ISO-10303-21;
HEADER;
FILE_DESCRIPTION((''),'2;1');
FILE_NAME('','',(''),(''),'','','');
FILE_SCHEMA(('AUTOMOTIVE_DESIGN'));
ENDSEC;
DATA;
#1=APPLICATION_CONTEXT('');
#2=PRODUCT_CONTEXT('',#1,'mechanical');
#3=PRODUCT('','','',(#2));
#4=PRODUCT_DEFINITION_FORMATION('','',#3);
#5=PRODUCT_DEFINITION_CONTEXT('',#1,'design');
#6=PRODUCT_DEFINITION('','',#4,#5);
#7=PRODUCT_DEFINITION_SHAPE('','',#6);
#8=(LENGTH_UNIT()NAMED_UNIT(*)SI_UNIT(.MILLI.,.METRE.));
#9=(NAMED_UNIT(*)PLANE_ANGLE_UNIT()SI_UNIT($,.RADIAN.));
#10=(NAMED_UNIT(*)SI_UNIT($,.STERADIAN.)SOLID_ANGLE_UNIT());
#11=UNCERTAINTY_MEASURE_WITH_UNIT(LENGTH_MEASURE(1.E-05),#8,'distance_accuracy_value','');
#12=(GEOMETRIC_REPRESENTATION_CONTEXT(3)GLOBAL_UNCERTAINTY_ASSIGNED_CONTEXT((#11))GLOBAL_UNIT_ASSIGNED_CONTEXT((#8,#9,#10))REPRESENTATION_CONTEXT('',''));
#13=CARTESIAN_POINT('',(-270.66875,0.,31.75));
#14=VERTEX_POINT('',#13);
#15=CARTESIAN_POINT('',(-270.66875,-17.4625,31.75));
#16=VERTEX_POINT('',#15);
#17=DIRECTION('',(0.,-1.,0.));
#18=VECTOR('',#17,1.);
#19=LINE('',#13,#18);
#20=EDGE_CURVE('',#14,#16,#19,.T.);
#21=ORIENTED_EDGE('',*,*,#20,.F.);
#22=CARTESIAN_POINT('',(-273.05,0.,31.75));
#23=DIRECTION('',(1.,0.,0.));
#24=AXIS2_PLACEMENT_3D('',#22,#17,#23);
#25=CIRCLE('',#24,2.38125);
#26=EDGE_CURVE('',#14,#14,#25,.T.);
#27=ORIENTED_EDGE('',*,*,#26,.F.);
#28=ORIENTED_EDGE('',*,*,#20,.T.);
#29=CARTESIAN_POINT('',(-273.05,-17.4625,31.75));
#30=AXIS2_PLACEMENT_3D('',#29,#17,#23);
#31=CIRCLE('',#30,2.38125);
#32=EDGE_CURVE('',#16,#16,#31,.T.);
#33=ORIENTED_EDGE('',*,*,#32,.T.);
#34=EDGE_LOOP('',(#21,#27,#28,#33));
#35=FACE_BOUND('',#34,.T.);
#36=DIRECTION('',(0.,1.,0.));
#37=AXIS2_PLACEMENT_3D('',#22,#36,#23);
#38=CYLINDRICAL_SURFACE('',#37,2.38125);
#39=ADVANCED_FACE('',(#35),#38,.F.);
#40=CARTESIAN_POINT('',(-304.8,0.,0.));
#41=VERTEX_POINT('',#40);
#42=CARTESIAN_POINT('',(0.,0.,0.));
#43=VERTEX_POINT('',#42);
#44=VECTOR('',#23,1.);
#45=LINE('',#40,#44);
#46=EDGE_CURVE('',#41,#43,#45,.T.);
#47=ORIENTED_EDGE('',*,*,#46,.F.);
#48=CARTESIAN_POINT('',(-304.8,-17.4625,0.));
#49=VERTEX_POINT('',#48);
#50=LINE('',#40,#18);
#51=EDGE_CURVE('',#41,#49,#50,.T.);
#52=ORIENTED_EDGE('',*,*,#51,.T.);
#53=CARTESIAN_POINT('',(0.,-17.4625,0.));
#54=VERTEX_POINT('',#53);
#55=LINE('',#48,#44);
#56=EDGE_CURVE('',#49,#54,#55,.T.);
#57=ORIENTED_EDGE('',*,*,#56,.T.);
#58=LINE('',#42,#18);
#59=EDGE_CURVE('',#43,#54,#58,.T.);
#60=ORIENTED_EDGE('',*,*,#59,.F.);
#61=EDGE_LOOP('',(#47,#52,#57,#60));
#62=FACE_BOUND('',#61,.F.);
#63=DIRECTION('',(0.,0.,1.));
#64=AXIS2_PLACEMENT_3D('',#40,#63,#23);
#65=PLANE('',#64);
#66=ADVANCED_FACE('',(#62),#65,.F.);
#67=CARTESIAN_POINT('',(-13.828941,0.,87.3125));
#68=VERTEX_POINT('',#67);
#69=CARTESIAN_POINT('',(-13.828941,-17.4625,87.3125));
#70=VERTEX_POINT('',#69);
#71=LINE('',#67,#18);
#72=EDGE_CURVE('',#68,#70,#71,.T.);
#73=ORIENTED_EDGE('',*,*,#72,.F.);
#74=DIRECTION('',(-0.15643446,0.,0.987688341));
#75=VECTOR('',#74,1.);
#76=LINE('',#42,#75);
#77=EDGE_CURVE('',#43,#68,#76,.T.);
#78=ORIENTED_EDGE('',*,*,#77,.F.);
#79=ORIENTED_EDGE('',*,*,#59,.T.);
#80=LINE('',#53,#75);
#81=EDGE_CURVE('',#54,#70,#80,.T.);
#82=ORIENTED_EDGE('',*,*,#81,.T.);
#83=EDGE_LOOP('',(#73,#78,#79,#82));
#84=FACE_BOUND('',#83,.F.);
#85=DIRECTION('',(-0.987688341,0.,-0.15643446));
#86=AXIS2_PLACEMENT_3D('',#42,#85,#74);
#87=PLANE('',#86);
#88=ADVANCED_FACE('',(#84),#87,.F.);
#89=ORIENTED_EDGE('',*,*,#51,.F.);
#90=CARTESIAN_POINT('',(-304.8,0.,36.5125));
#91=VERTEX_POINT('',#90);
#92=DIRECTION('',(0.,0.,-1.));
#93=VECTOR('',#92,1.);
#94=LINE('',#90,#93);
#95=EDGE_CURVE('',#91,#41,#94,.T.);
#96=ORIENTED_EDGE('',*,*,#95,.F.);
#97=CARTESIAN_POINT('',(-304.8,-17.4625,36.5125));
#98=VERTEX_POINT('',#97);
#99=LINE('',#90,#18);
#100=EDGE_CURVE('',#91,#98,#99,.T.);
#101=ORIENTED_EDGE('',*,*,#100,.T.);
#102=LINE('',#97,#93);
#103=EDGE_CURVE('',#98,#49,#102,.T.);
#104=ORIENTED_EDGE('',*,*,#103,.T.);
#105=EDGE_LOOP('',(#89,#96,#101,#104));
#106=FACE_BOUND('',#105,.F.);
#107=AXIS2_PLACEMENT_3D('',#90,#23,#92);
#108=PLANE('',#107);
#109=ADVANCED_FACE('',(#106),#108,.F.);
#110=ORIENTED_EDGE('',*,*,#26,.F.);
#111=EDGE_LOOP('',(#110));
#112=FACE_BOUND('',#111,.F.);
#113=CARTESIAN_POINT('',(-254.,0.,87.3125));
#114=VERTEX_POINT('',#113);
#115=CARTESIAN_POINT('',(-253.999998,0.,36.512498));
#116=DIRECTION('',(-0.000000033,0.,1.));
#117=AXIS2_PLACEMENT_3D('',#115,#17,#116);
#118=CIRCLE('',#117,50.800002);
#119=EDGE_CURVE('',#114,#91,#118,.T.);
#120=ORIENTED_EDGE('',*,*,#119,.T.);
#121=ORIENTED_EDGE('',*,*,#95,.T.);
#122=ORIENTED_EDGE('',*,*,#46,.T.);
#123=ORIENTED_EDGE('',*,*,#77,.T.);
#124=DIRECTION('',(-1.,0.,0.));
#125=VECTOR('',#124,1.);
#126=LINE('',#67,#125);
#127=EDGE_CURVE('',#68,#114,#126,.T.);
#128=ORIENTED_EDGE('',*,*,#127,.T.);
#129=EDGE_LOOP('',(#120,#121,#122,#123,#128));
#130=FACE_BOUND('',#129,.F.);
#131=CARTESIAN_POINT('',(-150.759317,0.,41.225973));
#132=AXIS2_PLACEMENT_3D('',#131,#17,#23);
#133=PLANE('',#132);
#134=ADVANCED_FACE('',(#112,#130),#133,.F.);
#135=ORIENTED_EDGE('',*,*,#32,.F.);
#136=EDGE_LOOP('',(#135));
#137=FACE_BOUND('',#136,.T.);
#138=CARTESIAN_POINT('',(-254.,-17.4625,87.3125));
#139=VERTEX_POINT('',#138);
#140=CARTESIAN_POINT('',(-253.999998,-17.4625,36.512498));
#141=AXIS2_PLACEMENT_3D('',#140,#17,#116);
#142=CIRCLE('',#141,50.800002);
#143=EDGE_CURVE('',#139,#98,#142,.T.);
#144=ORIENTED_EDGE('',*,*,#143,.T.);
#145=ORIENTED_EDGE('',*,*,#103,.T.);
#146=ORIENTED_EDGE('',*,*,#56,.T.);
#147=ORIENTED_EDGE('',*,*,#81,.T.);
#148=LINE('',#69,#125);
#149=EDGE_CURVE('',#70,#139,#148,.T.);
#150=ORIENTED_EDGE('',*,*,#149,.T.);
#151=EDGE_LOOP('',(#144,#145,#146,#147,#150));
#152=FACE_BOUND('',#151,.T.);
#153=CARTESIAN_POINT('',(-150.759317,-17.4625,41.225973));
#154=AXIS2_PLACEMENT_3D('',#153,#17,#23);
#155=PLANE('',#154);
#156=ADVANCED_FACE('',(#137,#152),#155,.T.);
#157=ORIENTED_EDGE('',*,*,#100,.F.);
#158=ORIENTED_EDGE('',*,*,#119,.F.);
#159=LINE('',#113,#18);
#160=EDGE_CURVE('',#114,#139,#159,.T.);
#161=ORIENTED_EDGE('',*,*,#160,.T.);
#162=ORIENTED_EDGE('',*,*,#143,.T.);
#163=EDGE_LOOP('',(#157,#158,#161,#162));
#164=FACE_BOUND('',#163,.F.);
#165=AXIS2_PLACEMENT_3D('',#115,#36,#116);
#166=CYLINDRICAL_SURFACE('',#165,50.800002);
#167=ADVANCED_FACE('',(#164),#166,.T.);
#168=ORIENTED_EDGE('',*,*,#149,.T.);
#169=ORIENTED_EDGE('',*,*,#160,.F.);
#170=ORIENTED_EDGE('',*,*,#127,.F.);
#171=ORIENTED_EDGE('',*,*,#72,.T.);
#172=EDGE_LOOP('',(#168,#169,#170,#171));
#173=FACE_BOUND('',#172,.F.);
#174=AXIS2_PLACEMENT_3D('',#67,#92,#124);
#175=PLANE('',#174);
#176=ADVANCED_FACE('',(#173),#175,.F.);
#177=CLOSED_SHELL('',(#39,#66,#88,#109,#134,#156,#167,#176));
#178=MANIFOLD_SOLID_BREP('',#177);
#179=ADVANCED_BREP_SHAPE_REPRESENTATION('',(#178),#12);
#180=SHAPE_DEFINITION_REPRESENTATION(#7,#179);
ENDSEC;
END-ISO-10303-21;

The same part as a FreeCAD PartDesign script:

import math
import FreeCAD as App
import Part
import Sketcher
from FreeCAD import Vector
Q = App.Units.Quantity

doc = App.newDocument("Part")
body = doc.addObject("PartDesign::Body", "Body")

# Sketch on XZ plane
sketch1 = body.newObject("Sketcher::SketchObject", "Sketch")
sketch1.AttachmentSupport = (doc.getObject("XZ_Plane"), [""])
sketch1.MapMode = "FlatFace"
sketch1.addGeometry([
    Part.LineSegment(Vector(-304.8, 0, 0), Vector(0, 0, 0)),  # 0
    Part.LineSegment(Vector(0, 0, 0), Vector(-13.8, 87.3, 0)),  # 1
    Part.LineSegment(Vector(-13.8, 87.3, 0), Vector(-254, 87.3, 0)),  # 2
    Part.ArcOfCircle(Part.Circle(Vector(-254, 36.5, 0), Vector(0, 0, 1), 50.8), math.radians(90), math.radians(180)),  # 3
    Part.LineSegment(Vector(-304.8, 36.5, 0), Vector(-304.8, 0, 0)),  # 4
    Part.Circle(Vector(-273.1, 31.8, 0), Vector(0, 0, 1), 2.4),  # 5
], False)
sketch1.addConstraint([
    Sketcher.Constraint("Coincident", 0, 2, 1, 1),
    Sketcher.Constraint("Coincident", 1, 2, 2, 1),
    Sketcher.Constraint("Tangent", 2, 2, 3, 1),
    Sketcher.Constraint("Tangent", 3, 2, 4, 1),
    Sketcher.Constraint("Coincident", 4, 2, 0, 1),
    Sketcher.Constraint("Horizontal", 0),
    Sketcher.Constraint("Horizontal", 2),
    Sketcher.Constraint("Vertical", 4),
    Sketcher.Constraint("Coincident", 0, 2, -1, 1),
    Sketcher.Constraint("Radius", 3, Q("2.0000001 in")),
    Sketcher.Constraint("DistanceX", 0, 1, 0, 2, Q("12 in")),
    Sketcher.Constraint("Diameter", 5, Q("0.1875 in")),
    Sketcher.Constraint("Angle", 1, Q("99 deg")),
    Sketcher.Constraint("DistanceY", 4, 2, 4, 1, Q("1.4375 in")),
    Sketcher.Constraint("DistanceX", 5, 3, -1, 1, Q("10.75 in")),
    Sketcher.Constraint("DistanceY", -1, 1, 5, 3, Q("1.25 in")),
])
pad1 = body.newObject("PartDesign::Pad", "Pad")
pad1.Profile = sketch1
pad1.Length = Q("0.6875 in")

doc.recompute()
